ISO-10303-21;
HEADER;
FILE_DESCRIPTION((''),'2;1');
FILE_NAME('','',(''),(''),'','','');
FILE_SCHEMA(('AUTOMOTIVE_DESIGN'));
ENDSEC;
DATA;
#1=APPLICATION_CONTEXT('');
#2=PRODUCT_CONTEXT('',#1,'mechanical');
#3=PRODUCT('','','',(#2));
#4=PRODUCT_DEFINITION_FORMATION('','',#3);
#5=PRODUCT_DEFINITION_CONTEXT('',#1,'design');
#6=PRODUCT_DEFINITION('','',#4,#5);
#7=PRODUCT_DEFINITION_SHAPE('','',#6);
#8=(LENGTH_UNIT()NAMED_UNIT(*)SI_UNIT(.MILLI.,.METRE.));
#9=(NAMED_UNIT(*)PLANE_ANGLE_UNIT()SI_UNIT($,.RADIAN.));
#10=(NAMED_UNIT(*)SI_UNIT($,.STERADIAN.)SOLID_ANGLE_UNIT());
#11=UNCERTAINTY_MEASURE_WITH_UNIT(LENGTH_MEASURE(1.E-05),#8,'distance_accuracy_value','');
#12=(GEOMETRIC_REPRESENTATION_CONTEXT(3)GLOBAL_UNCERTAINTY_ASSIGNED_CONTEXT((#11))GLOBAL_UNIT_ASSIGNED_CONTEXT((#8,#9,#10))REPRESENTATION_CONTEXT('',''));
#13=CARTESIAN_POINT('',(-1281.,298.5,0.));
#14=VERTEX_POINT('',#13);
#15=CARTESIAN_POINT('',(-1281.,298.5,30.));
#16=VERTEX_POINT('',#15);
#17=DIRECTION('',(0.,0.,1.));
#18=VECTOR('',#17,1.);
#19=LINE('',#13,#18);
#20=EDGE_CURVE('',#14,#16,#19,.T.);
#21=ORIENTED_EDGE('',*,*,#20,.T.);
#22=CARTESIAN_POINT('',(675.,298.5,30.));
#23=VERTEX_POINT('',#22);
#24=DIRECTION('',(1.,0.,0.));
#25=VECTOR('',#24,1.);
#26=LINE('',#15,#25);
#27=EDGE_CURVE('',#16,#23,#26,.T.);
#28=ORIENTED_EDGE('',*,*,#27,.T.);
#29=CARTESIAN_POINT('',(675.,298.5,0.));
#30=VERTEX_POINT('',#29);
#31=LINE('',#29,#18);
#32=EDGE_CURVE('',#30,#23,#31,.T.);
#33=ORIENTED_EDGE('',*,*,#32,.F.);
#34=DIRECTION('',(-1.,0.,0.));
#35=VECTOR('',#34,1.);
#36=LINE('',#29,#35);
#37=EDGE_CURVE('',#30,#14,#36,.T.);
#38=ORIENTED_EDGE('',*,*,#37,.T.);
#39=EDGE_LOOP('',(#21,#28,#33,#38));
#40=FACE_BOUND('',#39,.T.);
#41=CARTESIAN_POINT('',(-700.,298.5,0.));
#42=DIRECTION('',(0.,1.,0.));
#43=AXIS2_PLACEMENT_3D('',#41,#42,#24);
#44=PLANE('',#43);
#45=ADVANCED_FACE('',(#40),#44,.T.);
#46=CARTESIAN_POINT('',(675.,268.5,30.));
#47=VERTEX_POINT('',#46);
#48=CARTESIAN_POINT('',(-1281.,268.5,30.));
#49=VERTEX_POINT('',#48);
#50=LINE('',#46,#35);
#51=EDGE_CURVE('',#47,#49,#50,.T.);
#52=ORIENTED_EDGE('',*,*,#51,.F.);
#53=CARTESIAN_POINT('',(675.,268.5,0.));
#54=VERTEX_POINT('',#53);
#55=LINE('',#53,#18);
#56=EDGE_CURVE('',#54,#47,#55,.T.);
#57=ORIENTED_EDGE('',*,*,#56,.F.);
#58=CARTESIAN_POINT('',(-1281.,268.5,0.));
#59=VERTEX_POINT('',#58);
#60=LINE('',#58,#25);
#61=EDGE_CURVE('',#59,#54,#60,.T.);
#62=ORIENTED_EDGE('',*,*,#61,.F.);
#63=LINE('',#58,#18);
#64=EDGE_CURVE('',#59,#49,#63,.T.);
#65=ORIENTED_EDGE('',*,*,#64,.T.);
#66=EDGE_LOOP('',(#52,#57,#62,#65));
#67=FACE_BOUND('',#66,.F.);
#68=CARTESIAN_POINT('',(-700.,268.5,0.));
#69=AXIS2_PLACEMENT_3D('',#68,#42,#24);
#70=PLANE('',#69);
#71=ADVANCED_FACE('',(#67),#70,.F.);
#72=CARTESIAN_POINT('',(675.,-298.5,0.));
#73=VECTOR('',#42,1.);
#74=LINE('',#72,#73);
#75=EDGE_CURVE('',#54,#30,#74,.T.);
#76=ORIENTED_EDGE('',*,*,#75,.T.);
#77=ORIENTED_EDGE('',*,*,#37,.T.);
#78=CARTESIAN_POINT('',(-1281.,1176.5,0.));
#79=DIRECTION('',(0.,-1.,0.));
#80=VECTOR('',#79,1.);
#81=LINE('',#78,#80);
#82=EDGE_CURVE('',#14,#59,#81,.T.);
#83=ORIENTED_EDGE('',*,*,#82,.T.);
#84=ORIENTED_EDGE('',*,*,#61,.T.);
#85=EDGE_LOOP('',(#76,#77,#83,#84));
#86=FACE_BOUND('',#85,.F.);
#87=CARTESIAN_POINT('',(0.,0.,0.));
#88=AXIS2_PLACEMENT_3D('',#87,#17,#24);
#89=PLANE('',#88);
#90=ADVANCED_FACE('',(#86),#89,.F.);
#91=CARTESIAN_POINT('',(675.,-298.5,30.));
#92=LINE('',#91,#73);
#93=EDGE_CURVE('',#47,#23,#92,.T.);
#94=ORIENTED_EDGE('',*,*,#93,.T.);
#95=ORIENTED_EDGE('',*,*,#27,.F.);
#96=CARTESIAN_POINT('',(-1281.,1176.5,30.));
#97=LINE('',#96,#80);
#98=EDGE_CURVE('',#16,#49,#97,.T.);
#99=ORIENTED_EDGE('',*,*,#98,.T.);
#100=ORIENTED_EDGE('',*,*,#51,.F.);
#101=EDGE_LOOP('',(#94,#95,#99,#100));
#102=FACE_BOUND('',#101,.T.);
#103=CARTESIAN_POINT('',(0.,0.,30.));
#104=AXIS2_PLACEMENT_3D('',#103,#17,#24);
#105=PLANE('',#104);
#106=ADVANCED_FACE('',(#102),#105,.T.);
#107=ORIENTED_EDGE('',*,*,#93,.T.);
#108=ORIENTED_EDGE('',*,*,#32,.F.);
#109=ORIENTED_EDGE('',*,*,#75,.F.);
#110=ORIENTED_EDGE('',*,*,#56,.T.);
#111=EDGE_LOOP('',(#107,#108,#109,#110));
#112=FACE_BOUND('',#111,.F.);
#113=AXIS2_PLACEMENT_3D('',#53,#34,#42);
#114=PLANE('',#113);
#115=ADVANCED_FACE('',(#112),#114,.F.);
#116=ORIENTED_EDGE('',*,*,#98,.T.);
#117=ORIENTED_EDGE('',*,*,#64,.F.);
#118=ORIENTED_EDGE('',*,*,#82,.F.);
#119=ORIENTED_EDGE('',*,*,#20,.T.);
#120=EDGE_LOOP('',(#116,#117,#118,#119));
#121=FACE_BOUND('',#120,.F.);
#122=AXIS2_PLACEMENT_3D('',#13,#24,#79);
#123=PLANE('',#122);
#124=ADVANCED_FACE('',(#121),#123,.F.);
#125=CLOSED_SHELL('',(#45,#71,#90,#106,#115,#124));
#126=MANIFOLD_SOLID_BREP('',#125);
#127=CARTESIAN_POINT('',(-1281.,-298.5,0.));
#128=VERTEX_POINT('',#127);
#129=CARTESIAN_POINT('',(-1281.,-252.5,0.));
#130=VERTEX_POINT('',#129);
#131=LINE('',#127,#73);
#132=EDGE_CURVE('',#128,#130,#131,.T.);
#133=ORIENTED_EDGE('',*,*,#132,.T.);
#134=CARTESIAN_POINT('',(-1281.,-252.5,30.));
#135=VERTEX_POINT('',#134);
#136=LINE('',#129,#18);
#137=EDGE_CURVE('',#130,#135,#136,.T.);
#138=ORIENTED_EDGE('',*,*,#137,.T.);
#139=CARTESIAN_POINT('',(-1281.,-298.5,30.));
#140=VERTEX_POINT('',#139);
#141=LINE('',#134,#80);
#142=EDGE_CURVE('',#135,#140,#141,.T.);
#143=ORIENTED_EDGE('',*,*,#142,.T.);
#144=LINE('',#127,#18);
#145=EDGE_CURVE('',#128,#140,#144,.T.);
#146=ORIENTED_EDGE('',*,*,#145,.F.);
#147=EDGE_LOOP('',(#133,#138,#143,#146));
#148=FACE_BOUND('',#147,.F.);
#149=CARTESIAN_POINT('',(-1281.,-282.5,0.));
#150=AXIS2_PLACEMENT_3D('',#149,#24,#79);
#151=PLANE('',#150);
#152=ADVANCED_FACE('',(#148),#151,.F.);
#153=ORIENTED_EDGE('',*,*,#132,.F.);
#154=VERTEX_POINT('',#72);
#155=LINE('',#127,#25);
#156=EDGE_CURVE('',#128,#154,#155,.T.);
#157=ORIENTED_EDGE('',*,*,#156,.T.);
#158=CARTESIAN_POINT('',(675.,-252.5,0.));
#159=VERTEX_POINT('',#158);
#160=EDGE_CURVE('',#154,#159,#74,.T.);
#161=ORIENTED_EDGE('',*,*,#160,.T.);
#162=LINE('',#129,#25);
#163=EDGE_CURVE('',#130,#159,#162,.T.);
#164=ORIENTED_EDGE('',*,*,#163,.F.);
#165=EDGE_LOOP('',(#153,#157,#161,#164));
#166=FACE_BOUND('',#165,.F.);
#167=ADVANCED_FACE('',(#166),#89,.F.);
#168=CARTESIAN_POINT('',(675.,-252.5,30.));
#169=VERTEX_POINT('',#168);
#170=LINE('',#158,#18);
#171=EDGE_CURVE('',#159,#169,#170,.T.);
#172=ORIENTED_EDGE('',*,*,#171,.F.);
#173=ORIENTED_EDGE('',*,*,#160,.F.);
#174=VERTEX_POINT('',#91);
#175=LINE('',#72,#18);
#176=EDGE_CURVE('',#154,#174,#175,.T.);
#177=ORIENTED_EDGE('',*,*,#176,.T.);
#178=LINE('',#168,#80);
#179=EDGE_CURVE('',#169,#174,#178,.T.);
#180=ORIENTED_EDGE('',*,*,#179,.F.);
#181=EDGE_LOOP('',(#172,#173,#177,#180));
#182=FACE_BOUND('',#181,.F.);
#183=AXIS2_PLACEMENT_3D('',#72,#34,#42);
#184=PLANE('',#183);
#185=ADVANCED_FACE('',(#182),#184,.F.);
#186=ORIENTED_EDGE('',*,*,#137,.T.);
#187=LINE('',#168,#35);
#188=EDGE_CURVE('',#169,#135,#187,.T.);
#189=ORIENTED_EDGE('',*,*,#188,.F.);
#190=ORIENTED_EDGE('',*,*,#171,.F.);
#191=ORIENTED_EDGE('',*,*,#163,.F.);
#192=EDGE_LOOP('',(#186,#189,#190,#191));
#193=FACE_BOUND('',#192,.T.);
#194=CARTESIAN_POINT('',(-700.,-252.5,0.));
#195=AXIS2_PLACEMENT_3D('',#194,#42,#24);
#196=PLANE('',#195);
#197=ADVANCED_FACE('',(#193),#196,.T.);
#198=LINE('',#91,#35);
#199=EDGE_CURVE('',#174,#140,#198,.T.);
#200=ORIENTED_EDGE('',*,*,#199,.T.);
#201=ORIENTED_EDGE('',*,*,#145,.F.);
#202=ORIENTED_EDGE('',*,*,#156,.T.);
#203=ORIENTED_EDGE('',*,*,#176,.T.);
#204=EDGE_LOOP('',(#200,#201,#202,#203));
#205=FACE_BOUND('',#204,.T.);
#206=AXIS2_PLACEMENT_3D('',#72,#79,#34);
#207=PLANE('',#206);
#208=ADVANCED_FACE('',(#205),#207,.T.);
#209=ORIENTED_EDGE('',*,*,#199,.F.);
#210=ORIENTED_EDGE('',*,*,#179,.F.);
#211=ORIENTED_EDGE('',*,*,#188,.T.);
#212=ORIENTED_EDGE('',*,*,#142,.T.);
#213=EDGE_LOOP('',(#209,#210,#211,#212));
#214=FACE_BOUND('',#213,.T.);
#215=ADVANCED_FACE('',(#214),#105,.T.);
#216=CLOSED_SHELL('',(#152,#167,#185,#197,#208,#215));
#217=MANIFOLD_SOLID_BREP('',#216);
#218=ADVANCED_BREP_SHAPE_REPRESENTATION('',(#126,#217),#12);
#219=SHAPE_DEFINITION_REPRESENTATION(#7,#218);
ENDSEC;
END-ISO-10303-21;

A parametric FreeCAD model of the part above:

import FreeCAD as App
import Part
import Sketcher
Q = App.Units.Quantity


def add_polygon(sketch, points):
    """Adds a closed chain of lines whose ends are joined by coincident constraints."""
    first, n = sketch.GeometryCount, len(points)
    for a, b in zip(points, points[1:] + points[:1]):
        sketch.addGeometry(Part.LineSegment(App.Vector(*a, 0), App.Vector(*b, 0)), False)
    for i in range(n):
        sketch.addConstraint(Sketcher.Constraint("Coincident", first + i, 2, first + (i + 1) % n, 1))

doc = App.newDocument("Part")
body = doc.addObject("PartDesign::Body", "Body")
body.AllowCompound = True

sketch1 = body.newObject("Sketcher::SketchObject", "Sketch")
sketch1.AttachmentSupport = (doc.getObject("XY_Plane"), [""])
sketch1.MapMode = "FlatFace"
add_polygon(sketch1, [(675, 268), (675, 298), (-1281, 298), (-1281, 268)])
add_polygon(sketch1, [(675, -298), (675, -252), (-1281, -252), (-1281, -298)])
sketch1.addConstraint([
    Sketcher.Constraint("Vertical", 0),
    Sketcher.Constraint("Horizontal", 1),
    Sketcher.Constraint("Vertical", 2),
    Sketcher.Constraint("Horizontal", 3),
    Sketcher.Constraint("Vertical", 4),
    Sketcher.Constraint("Horizontal", 5),
    Sketcher.Constraint("Vertical", 6),
    Sketcher.Constraint("Horizontal", 7),
    Sketcher.Constraint("Symmetric", 1, 2, 6, 2, -1),
    Sketcher.Constraint("Vertical", 3, 2, 4, 2),
    Sketcher.Constraint("DistanceY", 0, 1, 0, 2, Q("30 mm")),
    Sketcher.Constraint("DistanceX", 1, 2, 1, 1, Q("1956 mm")),
    Sketcher.Constraint("DistanceY", 4, 1, 4, 2, Q("46 mm")),
    Sketcher.Constraint("DistanceX", -1, 1, 0, 2, Q("675 mm")),
    Sketcher.Constraint("DistanceY", 4, 2, 3, 2, Q("521 mm")),
])
pad1 = body.newObject("PartDesign::Pad", "Pad")
pad1.Profile = sketch1
pad1.Length = 30

doc.recompute()
